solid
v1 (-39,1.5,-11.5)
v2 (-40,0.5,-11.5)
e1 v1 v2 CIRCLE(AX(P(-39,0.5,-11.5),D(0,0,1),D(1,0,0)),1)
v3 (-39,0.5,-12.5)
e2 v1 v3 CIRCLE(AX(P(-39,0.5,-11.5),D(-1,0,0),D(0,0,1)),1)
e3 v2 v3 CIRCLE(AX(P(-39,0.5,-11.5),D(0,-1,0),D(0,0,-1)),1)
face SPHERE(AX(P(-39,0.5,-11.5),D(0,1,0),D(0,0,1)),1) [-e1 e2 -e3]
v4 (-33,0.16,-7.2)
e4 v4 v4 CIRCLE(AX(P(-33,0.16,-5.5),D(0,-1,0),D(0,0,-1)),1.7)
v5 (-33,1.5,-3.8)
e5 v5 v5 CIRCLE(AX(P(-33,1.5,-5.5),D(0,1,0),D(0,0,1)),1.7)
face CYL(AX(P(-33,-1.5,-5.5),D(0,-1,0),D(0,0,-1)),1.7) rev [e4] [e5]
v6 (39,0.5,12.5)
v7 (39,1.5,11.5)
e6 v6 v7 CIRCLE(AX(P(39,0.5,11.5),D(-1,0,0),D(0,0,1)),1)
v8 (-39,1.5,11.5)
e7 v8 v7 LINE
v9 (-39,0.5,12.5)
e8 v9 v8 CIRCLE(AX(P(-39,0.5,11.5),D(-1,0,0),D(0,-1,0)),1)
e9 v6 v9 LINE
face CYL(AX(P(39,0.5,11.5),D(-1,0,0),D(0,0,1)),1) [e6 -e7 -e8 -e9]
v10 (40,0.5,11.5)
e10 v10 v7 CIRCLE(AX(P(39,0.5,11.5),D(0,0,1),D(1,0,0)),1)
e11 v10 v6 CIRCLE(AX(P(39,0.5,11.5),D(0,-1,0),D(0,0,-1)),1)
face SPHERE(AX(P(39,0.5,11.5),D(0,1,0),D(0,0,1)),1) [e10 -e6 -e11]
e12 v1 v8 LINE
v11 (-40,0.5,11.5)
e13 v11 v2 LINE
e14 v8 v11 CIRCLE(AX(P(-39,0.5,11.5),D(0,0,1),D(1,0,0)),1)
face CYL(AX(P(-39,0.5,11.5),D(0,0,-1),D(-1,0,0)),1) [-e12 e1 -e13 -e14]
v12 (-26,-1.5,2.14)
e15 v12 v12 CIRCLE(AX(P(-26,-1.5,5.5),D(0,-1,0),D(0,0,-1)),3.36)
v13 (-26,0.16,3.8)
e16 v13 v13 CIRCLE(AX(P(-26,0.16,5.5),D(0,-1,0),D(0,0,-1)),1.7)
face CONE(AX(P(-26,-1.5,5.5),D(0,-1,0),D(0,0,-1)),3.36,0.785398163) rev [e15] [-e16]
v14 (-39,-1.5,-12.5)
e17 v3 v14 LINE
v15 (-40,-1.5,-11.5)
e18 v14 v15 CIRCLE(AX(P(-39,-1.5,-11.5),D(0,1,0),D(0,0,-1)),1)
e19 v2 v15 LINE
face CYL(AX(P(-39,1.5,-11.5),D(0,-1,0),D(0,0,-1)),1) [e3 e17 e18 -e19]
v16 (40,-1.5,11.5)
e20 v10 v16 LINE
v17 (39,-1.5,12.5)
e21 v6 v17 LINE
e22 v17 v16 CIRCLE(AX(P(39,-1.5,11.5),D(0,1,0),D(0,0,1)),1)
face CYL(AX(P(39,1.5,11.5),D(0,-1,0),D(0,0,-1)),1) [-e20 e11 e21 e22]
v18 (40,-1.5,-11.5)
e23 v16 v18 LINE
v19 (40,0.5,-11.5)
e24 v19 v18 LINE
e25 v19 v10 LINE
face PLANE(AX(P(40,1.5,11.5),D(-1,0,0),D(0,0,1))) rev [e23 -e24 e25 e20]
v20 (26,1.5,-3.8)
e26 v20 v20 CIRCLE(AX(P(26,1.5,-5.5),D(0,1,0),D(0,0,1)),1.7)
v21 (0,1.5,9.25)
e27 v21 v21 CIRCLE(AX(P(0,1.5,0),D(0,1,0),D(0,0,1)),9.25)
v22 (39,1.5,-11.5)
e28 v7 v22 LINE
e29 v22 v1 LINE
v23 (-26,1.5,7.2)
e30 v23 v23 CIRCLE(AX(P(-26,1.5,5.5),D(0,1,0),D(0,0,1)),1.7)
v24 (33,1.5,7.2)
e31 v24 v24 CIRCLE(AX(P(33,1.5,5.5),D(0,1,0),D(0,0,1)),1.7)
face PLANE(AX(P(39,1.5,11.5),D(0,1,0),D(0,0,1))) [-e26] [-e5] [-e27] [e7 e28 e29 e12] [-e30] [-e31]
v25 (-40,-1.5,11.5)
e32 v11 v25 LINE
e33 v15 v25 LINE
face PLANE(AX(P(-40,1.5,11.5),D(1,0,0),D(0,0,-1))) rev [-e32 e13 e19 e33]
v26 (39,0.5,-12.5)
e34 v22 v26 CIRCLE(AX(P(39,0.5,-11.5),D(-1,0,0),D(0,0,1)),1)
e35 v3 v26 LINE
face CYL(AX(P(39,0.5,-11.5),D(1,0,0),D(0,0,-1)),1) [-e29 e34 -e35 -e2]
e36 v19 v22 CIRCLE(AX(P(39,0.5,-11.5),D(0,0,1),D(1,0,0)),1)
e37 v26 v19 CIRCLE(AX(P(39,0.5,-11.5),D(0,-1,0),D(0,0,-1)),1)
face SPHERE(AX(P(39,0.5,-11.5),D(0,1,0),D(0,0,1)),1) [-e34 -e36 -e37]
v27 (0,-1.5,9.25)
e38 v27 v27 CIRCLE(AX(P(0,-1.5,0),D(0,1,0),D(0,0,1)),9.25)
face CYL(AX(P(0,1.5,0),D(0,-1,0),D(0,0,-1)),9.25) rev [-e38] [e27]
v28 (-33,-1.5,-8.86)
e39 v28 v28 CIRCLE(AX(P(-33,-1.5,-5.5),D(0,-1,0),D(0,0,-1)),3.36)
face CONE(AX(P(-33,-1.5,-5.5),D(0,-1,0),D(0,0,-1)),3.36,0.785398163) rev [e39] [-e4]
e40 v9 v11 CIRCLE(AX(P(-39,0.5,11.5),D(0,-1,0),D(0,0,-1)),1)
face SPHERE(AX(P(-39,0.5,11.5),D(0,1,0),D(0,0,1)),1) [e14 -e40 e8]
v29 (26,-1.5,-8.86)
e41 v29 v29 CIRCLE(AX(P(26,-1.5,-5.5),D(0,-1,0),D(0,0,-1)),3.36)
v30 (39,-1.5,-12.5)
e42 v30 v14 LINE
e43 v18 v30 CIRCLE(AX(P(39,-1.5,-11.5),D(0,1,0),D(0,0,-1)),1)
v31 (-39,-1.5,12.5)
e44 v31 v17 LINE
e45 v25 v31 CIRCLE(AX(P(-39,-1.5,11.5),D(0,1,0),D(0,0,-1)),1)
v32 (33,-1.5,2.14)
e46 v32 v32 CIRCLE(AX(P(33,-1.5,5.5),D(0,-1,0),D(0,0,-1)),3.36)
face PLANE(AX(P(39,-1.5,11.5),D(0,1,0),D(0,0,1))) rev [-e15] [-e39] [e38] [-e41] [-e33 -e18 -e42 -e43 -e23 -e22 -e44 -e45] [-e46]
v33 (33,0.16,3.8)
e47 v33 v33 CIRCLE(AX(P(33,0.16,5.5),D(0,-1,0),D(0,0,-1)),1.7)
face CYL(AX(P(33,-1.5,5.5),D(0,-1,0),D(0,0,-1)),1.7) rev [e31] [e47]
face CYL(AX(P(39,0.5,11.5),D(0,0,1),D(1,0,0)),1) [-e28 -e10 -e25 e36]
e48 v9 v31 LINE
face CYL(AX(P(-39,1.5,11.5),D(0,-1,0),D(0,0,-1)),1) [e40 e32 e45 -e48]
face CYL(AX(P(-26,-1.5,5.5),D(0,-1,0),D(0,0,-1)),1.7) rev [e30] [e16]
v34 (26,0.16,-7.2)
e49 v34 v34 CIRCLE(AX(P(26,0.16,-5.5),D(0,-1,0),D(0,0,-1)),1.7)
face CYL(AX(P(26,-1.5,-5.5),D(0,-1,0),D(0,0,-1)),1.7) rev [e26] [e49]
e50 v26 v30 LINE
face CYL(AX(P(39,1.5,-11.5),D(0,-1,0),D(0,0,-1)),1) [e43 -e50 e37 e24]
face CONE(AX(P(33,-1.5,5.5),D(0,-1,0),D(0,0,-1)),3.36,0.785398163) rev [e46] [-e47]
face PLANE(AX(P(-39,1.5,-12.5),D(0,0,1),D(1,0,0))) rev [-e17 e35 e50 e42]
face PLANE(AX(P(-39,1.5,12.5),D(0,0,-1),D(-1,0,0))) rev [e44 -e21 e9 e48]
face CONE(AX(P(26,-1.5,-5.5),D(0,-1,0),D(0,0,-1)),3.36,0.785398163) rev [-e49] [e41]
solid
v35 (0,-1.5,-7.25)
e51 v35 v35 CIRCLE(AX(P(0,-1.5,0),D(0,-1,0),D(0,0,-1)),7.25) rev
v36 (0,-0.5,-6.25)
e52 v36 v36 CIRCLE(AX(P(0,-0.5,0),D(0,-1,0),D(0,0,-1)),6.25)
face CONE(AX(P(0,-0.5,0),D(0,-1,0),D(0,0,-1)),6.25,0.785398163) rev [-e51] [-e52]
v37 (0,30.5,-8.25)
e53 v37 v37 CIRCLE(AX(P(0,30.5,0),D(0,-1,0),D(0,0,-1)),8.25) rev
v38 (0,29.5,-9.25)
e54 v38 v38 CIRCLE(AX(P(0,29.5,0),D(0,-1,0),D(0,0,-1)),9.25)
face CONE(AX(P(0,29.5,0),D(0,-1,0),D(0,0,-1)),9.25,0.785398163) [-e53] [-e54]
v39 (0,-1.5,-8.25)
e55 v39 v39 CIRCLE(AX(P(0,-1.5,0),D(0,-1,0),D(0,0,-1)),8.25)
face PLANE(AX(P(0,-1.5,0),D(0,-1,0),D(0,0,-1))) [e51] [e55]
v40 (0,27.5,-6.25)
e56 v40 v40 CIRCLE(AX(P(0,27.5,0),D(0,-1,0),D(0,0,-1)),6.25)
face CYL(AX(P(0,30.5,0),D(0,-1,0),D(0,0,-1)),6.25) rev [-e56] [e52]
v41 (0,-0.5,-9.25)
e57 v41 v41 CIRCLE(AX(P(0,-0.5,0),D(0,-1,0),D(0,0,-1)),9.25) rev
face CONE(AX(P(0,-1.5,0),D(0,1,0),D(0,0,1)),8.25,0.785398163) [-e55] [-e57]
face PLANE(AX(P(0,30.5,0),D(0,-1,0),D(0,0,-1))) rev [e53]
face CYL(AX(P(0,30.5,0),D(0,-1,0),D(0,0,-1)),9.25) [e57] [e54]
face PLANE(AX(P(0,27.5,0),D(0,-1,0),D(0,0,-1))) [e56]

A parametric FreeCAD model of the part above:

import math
import FreeCAD as App
import Part
import Sketcher
Q = App.Units.Quantity


def edges_at(feature, points):
    """Names of the edges that pass closest to the given points."""
    edges = feature.Shape.Edges
    near = lambda p: min(range(len(edges)), key=lambda i: edges[i].distToShape(Part.Vertex(*p))[0])
    return sorted({f"Edge{near(p) + 1}" for p in points})


def faces_at(feature, points):
    """Names of the faces that lie closest to the given points."""
    faces = feature.Shape.Faces
    near = lambda p: min(range(len(faces)), key=lambda i: faces[i].distToShape(Part.Vertex(*p))[0])
    return sorted({f"Face{near(p) + 1}" for p in points})

doc = App.newDocument("Part")
body = doc.addObject("PartDesign::Body", "Body")

# Sketch on XZ plane
sketch1 = body.newObject("Sketcher::SketchObject", "Sketch")
sketch1.AttachmentSupport = (doc.getObject("XZ_Plane"), [""])
sketch1.MapMode = "FlatFace"
sketch1.addGeometry([
    Part.LineSegment(App.Vector(-39, 12.5, 0), App.Vector(39, 12.5, 0)),  # 0
    Part.ArcOfCircle(Part.Circle(App.Vector(39, 11.5, 0), App.Vector(0, 0, 1), 1), math.radians(0), math.radians(90)),  # 1
    Part.LineSegment(App.Vector(40, 11.5, 0), App.Vector(40, -11.5, 0)),  # 2
    Part.ArcOfCircle(Part.Circle(App.Vector(39, -11.5, 0), App.Vector(0, 0, 1), 1), math.radians(-90), math.radians(0)),  # 3
    Part.LineSegment(App.Vector(39, -12.5, 0), App.Vector(-39, -12.5, 0)),  # 4
    Part.ArcOfCircle(Part.Circle(App.Vector(-39, -11.5, 0), App.Vector(0, 0, 1), 1), math.radians(-180), math.radians(-90)),  # 5
    Part.LineSegment(App.Vector(-40, -11.5, 0), App.Vector(-40, 11.5, 0)),  # 6
    Part.ArcOfCircle(Part.Circle(App.Vector(-39, 11.5, 0), App.Vector(0, 0, 1), 1), math.radians(90), math.radians(180)),  # 7
    Part.Circle(App.Vector(0, 0, 0), App.Vector(0, 0, 1), 9.2),  # 8
], False)
sketch1.addConstraint([
    Sketcher.Constraint("Tangent", 0, 2, 1, 2),
    Sketcher.Constraint("Tangent", 1, 1, 2, 1),
    Sketcher.Constraint("Tangent", 2, 2, 3, 2),
    Sketcher.Constraint("Tangent", 3, 1, 4, 1),
    Sketcher.Constraint("Tangent", 4, 2, 5, 2),
    Sketcher.Constraint("Tangent", 5, 1, 6, 1),
    Sketcher.Constraint("Tangent", 6, 2, 7, 2),
    Sketcher.Constraint("Tangent", 7, 1, 0, 1),
    Sketcher.Constraint("Horizontal", 0),
    Sketcher.Constraint("Vertical", 2),
    Sketcher.Constraint("Horizontal", 4),
    Sketcher.Constraint("Vertical", 6),
    Sketcher.Constraint("Coincident", 8, 3, -1, 1),
    Sketcher.Constraint("Equal", 1, 3),
    Sketcher.Constraint("Equal", 3, 5),
    Sketcher.Constraint("Equal", 5, 7),
    Sketcher.Constraint("Symmetric", 1, 3, 5, 3, -1, 1),
    Sketcher.Constraint("Radius", 1, 1.0),
    Sketcher.Constraint("Diameter", 8, 18.5),
    Sketcher.Constraint("DistanceX", 0, 1, 0, 2, 78.0),
    Sketcher.Constraint("DistanceY", 2, 2, 2, 1, 23.0),
])
pad1 = body.newObject("PartDesign::Pad", "Pad")
pad1.Profile = sketch1
pad1.Length = 3
pad1.Midplane = True
doc.recompute()

fillet = body.newObject("PartDesign::Fillet", "Fillet")
fillet.Base = (pad1, edges_at(pad1, [
    (39.707, 1.5, -12.207),
    (0, 1.5, -12.5),
    (-39.707, 1.5, -12.207),
    (-40, 1.5, 0),
    (-39.707, 1.5, 12.207),
    (0, 1.5, 12.5),
    (39.707, 1.5, 12.207),
    (40, 1.5, 0),
]))
fillet.Radius = 1

# Sketch on YZ plane
sketch2 = body.newObject("Sketcher::SketchObject", "Sketch001")
sketch2.AttachmentSupport = (doc.getObject("YZ_Plane"), [""])
sketch2.MapMode = "FlatFace"
sketch2.AttachmentOffset = App.Placement(App.Vector(0, 0, 26), App.Rotation())
sketch2.addGeometry([
    Part.LineSegment(App.Vector(30.5, -5.5, 0), App.Vector(-1.5, -5.5, 0)),  # 0
    Part.LineSegment(App.Vector(-1.5, -5.5, 0), App.Vector(-1.5, -8.9, 0)),  # 1
    Part.LineSegment(App.Vector(-1.5, -8.9, 0), App.Vector(0.2, -7.2, 0)),  # 2
    Part.LineSegment(App.Vector(0.2, -7.2, 0), App.Vector(30.5, -7.2, 0)),  # 3
    Part.LineSegment(App.Vector(30.5, -7.2, 0), App.Vector(30.5, -5.5, 0)),  # 4
], False)
sketch2.addGeometry(Part.LineSegment(App.Vector(-1.5, -5.5, 0), App.Vector(30.5, -5.5, 0)), True)  # axis
sketch2.addConstraint([
    Sketcher.Constraint("Coincident", 0, 2, 1, 1),
    Sketcher.Constraint("Coincident", 1, 2, 2, 1),
    Sketcher.Constraint("Coincident", 2, 2, 3, 1),
    Sketcher.Constraint("Coincident", 3, 2, 4, 1),
    Sketcher.Constraint("Coincident", 4, 2, 0, 1),
    Sketcher.Constraint("Horizontal", 0),
    Sketcher.Constraint("Vertical", 1),
    Sketcher.Constraint("Horizontal", 3),
    Sketcher.Constraint("Vertical", 4),
    Sketcher.Constraint("Horizontal", 5),
    Sketcher.Constraint("Coincident", 5, 1, 0, 2),
    Sketcher.Constraint("Vertical", 3, 2, 5, 2),
    Sketcher.Constraint("DistanceX", 0, 2, 0, 1, 32.0),
    Sketcher.Constraint("Angle", 2, Q("45 deg")),
    Sketcher.Constraint("DistanceY", 4, 1, 4, 2, 1.7),
    Sketcher.Constraint("DistanceX", 3, 1, 3, 2, 30.34),
    Sketcher.Constraint("DistanceX", 0, 2, -1, 1, 1.5),
    Sketcher.Constraint("DistanceY", 0, 2, -1, 1, 5.5),
])
groove = body.newObject("PartDesign::Groove", "Groove")
groove.Profile = sketch2
groove.ReferenceAxis = (sketch2, ["Axis0"])
groove.Angle = 360
doc.recompute()

datumline = body.newObject("PartDesign::Line", "DatumLine")
datumline.Placement = App.Placement(App.Vector(0, 0, 0), App.Rotation(App.Vector(0, 0, 1), App.Vector(0.536875492, 0, 0.843661488)))
linearpattern = body.newObject("PartDesign::LinearPattern", "LinearPattern")
linearpattern.Originals = [groove]
linearpattern.Direction = (datumline, [""])
linearpattern.Mode = "offset"
linearpattern.Offset = 13.038405
linearpattern.Occurrences = 2
body.Tip = linearpattern
doc.recompute()

datumline2 = body.newObject("PartDesign::Line", "DatumLine001")
datumline2.Placement = App.Placement(App.Vector(0, 0, 0), App.Rotation(App.Vector(0, 0, 1), App.Vector(-0.978349703, 0, 0.206958591)))
linearpattern2 = body.newObject("PartDesign::LinearPattern", "LinearPattern001")
linearpattern2.Originals = [groove]
linearpattern2.Direction = (datumline2, [""])
linearpattern2.Mode = "offset"
linearpattern2.Offset = 53.150729
linearpattern2.Occurrences = 2
body.Tip = linearpattern2
doc.recompute()

linearpattern3 = body.newObject("PartDesign::LinearPattern", "LinearPattern002")
linearpattern3.Originals = [groove]
linearpattern3.Direction = (doc.getObject("X_Axis"), [""])
linearpattern3.Mode = "offset"
linearpattern3.Offset = 59
linearpattern3.Occurrences = 2
linearpattern3.Reversed = True
body.Tip = linearpattern3
body2 = doc.addObject("PartDesign::Body", "Body001")

# Sketch on XZ plane
sketch3 = body2.newObject("Sketcher::SketchObject", "Sketch002")
sketch3.AttachmentSupport = (doc.getObject("XZ_Plane001"), [""])
sketch3.MapMode = "FlatFace"
sketch3.AttachmentOffset = App.Placement(App.Vector(0, 0, 1.5), App.Rotation())
sketch3.addGeometry(Part.Circle(App.Vector(0, 0, 0), App.Vector(0, 0, 1), 9), False)
sketch3.addConstraint([
    Sketcher.Constraint("Coincident", 0, 3, -1, 1),
    Sketcher.Constraint("Diameter", 0, 18.5),
])
pad2 = body2.newObject("PartDesign::Pad", "Pad001")
pad2.Profile = sketch3
pad2.Length = 32
pad2.Reversed = True
doc.recompute()

thickness = body2.newObject("PartDesign::Thickness", "Thickness")
thickness.Base = (pad2, faces_at(pad2, [(0, -1.5, 0)]))
thickness.Value = 3
thickness.Reversed = True
thickness.Join = "Intersection"
doc.recompute()

chamfer = body2.newObject("PartDesign::Chamfer", "Chamfer")
chamfer.Base = (thickness, edges_at(thickness, [(0, 30.5, 9.25)]))
chamfer.Size = 1
doc.recompute()

chamfer2 = body2.newObject("PartDesign::Chamfer", "Chamfer001")
chamfer2.Base = (chamfer, edges_at(chamfer, [(0, -1.5, 9.25), (0, -1.5, 6.25)]))
chamfer2.Size = 1

doc.recompute()
